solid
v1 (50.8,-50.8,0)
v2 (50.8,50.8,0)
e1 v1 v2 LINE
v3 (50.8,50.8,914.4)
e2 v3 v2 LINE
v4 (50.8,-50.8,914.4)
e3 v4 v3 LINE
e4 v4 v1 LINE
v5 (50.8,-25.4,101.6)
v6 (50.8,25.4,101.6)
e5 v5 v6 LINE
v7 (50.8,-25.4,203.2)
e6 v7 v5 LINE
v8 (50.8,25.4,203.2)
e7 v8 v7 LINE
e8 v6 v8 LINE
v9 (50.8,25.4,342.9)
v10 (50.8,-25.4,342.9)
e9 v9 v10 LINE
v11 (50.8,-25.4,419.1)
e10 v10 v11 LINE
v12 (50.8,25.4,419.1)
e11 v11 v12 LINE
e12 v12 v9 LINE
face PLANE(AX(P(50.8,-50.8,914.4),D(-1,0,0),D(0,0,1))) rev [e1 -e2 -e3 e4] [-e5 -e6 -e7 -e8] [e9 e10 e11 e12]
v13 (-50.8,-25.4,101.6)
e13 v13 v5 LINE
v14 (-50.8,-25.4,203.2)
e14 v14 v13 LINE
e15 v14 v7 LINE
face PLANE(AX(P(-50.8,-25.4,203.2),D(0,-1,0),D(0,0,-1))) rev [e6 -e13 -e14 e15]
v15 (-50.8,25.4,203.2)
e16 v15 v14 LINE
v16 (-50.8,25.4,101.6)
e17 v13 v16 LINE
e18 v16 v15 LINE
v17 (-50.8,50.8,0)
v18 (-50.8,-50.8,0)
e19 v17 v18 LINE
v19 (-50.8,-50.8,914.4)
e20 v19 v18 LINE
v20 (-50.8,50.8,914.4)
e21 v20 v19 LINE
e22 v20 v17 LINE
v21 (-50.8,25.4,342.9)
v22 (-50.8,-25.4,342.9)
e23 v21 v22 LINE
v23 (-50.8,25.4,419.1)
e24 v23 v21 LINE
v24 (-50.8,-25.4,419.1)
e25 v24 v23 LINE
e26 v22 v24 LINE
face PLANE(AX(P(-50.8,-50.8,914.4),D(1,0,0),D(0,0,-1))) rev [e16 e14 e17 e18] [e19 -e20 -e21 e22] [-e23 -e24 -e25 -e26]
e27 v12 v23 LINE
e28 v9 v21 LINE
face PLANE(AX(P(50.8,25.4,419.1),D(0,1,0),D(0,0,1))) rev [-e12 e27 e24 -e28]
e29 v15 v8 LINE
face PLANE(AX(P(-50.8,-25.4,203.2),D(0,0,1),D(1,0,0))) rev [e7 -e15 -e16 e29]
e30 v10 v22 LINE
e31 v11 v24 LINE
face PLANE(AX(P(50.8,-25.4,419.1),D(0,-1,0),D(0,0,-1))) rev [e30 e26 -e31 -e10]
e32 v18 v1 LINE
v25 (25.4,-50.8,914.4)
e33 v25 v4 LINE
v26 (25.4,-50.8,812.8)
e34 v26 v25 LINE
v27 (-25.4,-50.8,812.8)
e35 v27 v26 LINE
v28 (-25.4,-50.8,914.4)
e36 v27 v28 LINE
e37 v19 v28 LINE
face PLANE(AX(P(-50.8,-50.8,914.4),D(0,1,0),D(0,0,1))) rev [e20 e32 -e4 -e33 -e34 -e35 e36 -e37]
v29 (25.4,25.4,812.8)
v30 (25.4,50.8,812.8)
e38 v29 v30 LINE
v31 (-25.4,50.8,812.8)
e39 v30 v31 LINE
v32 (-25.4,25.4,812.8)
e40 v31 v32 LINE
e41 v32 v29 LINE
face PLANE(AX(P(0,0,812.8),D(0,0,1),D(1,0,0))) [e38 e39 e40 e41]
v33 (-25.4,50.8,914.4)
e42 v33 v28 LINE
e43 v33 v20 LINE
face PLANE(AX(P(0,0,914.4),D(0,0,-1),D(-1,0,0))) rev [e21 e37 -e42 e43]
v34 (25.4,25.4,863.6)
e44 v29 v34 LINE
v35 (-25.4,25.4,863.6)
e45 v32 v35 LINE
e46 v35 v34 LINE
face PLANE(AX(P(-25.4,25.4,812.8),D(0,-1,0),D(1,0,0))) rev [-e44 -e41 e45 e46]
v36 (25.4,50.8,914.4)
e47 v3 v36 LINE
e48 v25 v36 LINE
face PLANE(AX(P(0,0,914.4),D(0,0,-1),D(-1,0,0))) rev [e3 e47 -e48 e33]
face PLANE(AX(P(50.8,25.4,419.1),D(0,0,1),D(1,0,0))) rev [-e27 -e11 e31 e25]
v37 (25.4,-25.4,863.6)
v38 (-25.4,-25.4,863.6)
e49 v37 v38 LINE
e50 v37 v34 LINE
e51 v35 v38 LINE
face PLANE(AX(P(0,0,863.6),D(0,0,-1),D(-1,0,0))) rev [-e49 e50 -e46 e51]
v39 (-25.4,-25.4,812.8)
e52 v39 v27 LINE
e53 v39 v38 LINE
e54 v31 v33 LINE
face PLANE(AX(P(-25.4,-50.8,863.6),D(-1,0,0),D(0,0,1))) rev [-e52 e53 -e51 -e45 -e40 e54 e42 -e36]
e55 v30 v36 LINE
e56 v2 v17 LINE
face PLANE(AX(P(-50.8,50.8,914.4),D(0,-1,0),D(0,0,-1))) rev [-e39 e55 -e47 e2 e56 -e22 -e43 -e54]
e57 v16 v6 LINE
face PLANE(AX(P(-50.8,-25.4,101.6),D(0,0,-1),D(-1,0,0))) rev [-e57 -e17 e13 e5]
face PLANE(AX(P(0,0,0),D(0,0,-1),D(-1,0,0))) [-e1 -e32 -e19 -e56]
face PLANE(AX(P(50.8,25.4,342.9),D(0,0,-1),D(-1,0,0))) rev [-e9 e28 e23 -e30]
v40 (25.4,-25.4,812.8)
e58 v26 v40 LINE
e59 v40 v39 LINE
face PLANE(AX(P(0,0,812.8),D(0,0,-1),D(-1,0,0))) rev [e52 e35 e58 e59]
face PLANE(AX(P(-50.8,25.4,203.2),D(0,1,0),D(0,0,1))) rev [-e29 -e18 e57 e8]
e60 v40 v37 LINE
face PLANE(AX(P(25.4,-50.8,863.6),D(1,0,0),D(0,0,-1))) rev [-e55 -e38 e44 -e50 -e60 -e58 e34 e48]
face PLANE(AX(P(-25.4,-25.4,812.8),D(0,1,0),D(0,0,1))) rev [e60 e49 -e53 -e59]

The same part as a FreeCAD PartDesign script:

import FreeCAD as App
import Part
import Sketcher

V = App.Vector
Q = App.Units.Quantity

doc = App.newDocument("Part")
body = doc.addObject("PartDesign::Body", "Body")

# Sketch on XY plane
sketch1 = body.newObject("Sketcher::SketchObject", "Sketch")
sketch1.AttachmentSupport = (doc.getObject("XY_Plane"), [""])
sketch1.MapMode = "FlatFace"
sketch1.addGeometry([
    Part.LineSegment(V(-50.8, 50.8, 0), V(-50.8, -50.8, 0)),
    Part.LineSegment(V(-50.8, -50.8, 0), V(50.8, -50.8, 0)),
    Part.LineSegment(V(50.8, -50.8, 0), V(50.8, 50.8, 0)),
    Part.LineSegment(V(50.8, 50.8, 0), V(-50.8, 50.8, 0)),
], False)
sketch1.addConstraint([
    Sketcher.Constraint("Coincident", 0, 2, 1, 1),
    Sketcher.Constraint("Coincident", 1, 2, 2, 1),
    Sketcher.Constraint("Coincident", 2, 2, 3, 1),
    Sketcher.Constraint("Coincident", 3, 2, 0, 1),
    Sketcher.Constraint("Vertical", 0),
    Sketcher.Constraint("Horizontal", 1),
    Sketcher.Constraint("Vertical", 2),
    Sketcher.Constraint("Horizontal", 3),
    Sketcher.Constraint("Symmetric", 0, 2, 2, 2, -1, 1),
    Sketcher.Constraint("Equal", 3, 0),
    Sketcher.Constraint("DistanceX", 1, 1, 1, 2, Q("4 in")),
])
pad1 = body.newObject("PartDesign::Pad", "Pad")
pad1.Profile = sketch1
pad1.Length = Q("36 in")

# Sketch on YZ plane
sketch2 = body.newObject("Sketcher::SketchObject", "Sketch001")
sketch2.AttachmentSupport = (doc.getObject("YZ_Plane"), [""])
sketch2.MapMode = "FlatFace"
sketch2.AttachmentOffset = App.Placement(V(0, 0, 2 * 25.4), App.Rotation())
sketch2.addGeometry([
    Part.LineSegment(V(25.4, 203.2, 0), V(-25.4, 203.2, 0)),
    Part.LineSegment(V(-25.4, 203.2, 0), V(-25.4, 101.6, 0)),
    Part.LineSegment(V(-25.4, 101.6, 0), V(25.4, 101.6, 0)),
    Part.LineSegment(V(25.4, 101.6, 0), V(25.4, 203.2, 0)),
], False)
sketch2.addConstraint([
    Sketcher.Constraint("Coincident", 0, 2, 1, 1),
    Sketcher.Constraint("Coincident", 1, 2, 2, 1),
    Sketcher.Constraint("Coincident", 2, 2, 3, 1),
    Sketcher.Constraint("Coincident", 3, 2, 0, 1),
    Sketcher.Constraint("Horizontal", 0),
    Sketcher.Constraint("Vertical", 1),
    Sketcher.Constraint("Horizontal", 2),
    Sketcher.Constraint("Vertical", 3),
    Sketcher.Constraint("DistanceX", 0, 2, 0, 1, Q("2 in")),
    Sketcher.Constraint("DistanceY", 1, 2, 1, 1, Q("4 in")),
    Sketcher.Constraint("DistanceX", 0, 2, -1, 1, Q("1 in")),
    Sketcher.Constraint("DistanceY", -1, 1, 0, 2, Q("8 in")),
])
pocket1 = body.newObject("PartDesign::Pocket", "Pocket")
pocket1.Profile = sketch2
pocket1.Type = "ThroughAll"
pocket1.Midplane = True

# Sketch on XY plane
sketch3 = body.newObject("Sketcher::SketchObject", "Sketch002")
sketch3.AttachmentSupport = (doc.getObject("XY_Plane"), [""])
sketch3.MapMode = "FlatFace"
sketch3.AttachmentOffset = App.Placement(V(0, 0, 36 * 25.4), App.Rotation())
sketch3.addGeometry([
    Part.LineSegment(V(-25.4, 50.8, 0), V(-25.4, -50.8, 0)),
    Part.LineSegment(V(-25.4, -50.8, 0), V(25.4, -50.8, 0)),
    Part.LineSegment(V(25.4, -50.8, 0), V(25.4, 50.8, 0)),
    Part.LineSegment(V(25.4, 50.8, 0), V(-25.4, 50.8, 0)),
], False)
sketch3.addConstraint([
    Sketcher.Constraint("Coincident", 0, 2, 1, 1),
    Sketcher.Constraint("Coincident", 1, 2, 2, 1),
    Sketcher.Constraint("Coincident", 2, 2, 3, 1),
    Sketcher.Constraint("Coincident", 3, 2, 0, 1),
    Sketcher.Constraint("Vertical", 0),
    Sketcher.Constraint("Horizontal", 1),
    Sketcher.Constraint("Vertical", 2),
    Sketcher.Constraint("Horizontal", 3),
    Sketcher.Constraint("Symmetric", 0, 2, 2, 2, -1, 1),
    Sketcher.Constraint("DistanceX", 1, 1, 1, 2, Q("2 in")),
    Sketcher.Constraint("DistanceY", 0, 2, 0, 1, Q("4 in")),
])
pocket2 = body.newObject("PartDesign::Pocket", "Pocket001")
pocket2.Profile = sketch3
pocket2.Length = Q("2 in")

# Sketch on XY plane
sketch4 = body.newObject("Sketcher::SketchObject", "Sketch003")
sketch4.AttachmentSupport = (doc.getObject("XY_Plane"), [""])
sketch4.MapMode = "FlatFace"
sketch4.AttachmentOffset = App.Placement(V(0, 0, 34 * 25.4), App.Rotation())
sketch4.addGeometry([
    Part.LineSegment(V(-25.4, 50.8, 0), V(-25.4, 25.4, 0)),  # 0
    Part.LineSegment(V(-25.4, 25.4, 0), V(25.4, 25.4, 0)),  # 1
    Part.LineSegment(V(25.4, 25.4, 0), V(25.4, 50.8, 0)),  # 2
    Part.LineSegment(V(25.4, 50.8, 0), V(-25.4, 50.8, 0)),  # 3
    Part.LineSegment(V(-25.4, -25.4, 0), V(-25.4, -50.8, 0)),  # 4
    Part.LineSegment(V(-25.4, -50.8, 0), V(25.4, -50.8, 0)),  # 5
    Part.LineSegment(V(25.4, -50.8, 0), V(25.4, -25.4, 0)),  # 6
    Part.LineSegment(V(25.4, -25.4, 0), V(-25.4, -25.4, 0)),  # 7
], False)
sketch4.addConstraint([
    Sketcher.Constraint("Coincident", 0, 2, 1, 1),
    Sketcher.Constraint("Coincident", 1, 2, 2, 1),
    Sketcher.Constraint("Coincident", 2, 2, 3, 1),
    Sketcher.Constraint("Coincident", 3, 2, 0, 1),
    Sketcher.Constraint("Coincident", 4, 2, 5, 1),
    Sketcher.Constraint("Coincident", 5, 2, 6, 1),
    Sketcher.Constraint("Coincident", 6, 2, 7, 1),
    Sketcher.Constraint("Coincident", 7, 2, 4, 1),
    Sketcher.Constraint("Vertical", 0),
    Sketcher.Constraint("Horizontal", 1),
    Sketcher.Constraint("Vertical", 2),
    Sketcher.Constraint("Horizontal", 3),
    Sketcher.Constraint("Vertical", 4),
    Sketcher.Constraint("Horizontal", 5),
    Sketcher.Constraint("Vertical", 6),
    Sketcher.Constraint("Horizontal", 7),
    Sketcher.Constraint("Symmetric", 2, 2, 4, 2, -1, 1),
    Sketcher.Constraint("Symmetric", 0, 2, 6, 2, -1, 1),
    Sketcher.Constraint("Vertical", 3, 2, 4, 2),
    Sketcher.Constraint("DistanceX", 1, 1, 1, 2, Q("2 in")),
    Sketcher.Constraint("DistanceY", 0, 2, 0, 1, Q("1 in")),
    Sketcher.Constraint("DistanceY", -1, 1, 0, 2, Q("1 in")),
])
pocket3 = body.newObject("PartDesign::Pocket", "Pocket002")
pocket3.Profile = sketch4
pocket3.Length = Q("2 in")

# Sketch on YZ plane
sketch5 = body.newObject("Sketcher::SketchObject", "Sketch004")
sketch5.AttachmentSupport = (doc.getObject("YZ_Plane"), [""])
sketch5.MapMode = "FlatFace"
sketch5.AttachmentOffset = App.Placement(V(0, 0, -2 * 25.4), App.Rotation())
sketch5.addGeometry([
    Part.LineSegment(V(25.4, 342.9, 0), V(-25.4, 342.9, 0)),
    Part.LineSegment(V(-25.4, 342.9, 0), V(-25.4, 419.1, 0)),
    Part.LineSegment(V(-25.4, 419.1, 0), V(25.4, 419.1, 0)),
    Part.LineSegment(V(25.4, 419.1, 0), V(25.4, 342.9, 0)),
], False)
sketch5.addConstraint([
    Sketcher.Constraint("Coincident", 0, 2, 1, 1),
    Sketcher.Constraint("Coincident", 1, 2, 2, 1),
    Sketcher.Constraint("Coincident", 2, 2, 3, 1),
    Sketcher.Constraint("Coincident", 3, 2, 0, 1),
    Sketcher.Constraint("Horizontal", 0),
    Sketcher.Constraint("Vertical", 1),
    Sketcher.Constraint("Horizontal", 2),
    Sketcher.Constraint("Vertical", 3),
    Sketcher.Constraint("DistanceX", 0, 2, 0, 1, Q("2 in")),
    Sketcher.Constraint("DistanceY", 1, 1, 1, 2, Q("3 in")),
    Sketcher.Constraint("DistanceX", 0, 2, -1, 1, Q("1 in")),
    Sketcher.Constraint("DistanceY", -1, 1, 0, 2, Q("13.5 in")),
])
pocket4 = body.newObject("PartDesign::Pocket", "Pocket003")
pocket4.Profile = sketch5
pocket4.Type = "ThroughAll"
pocket4.Reversed = True

doc.recompute()
